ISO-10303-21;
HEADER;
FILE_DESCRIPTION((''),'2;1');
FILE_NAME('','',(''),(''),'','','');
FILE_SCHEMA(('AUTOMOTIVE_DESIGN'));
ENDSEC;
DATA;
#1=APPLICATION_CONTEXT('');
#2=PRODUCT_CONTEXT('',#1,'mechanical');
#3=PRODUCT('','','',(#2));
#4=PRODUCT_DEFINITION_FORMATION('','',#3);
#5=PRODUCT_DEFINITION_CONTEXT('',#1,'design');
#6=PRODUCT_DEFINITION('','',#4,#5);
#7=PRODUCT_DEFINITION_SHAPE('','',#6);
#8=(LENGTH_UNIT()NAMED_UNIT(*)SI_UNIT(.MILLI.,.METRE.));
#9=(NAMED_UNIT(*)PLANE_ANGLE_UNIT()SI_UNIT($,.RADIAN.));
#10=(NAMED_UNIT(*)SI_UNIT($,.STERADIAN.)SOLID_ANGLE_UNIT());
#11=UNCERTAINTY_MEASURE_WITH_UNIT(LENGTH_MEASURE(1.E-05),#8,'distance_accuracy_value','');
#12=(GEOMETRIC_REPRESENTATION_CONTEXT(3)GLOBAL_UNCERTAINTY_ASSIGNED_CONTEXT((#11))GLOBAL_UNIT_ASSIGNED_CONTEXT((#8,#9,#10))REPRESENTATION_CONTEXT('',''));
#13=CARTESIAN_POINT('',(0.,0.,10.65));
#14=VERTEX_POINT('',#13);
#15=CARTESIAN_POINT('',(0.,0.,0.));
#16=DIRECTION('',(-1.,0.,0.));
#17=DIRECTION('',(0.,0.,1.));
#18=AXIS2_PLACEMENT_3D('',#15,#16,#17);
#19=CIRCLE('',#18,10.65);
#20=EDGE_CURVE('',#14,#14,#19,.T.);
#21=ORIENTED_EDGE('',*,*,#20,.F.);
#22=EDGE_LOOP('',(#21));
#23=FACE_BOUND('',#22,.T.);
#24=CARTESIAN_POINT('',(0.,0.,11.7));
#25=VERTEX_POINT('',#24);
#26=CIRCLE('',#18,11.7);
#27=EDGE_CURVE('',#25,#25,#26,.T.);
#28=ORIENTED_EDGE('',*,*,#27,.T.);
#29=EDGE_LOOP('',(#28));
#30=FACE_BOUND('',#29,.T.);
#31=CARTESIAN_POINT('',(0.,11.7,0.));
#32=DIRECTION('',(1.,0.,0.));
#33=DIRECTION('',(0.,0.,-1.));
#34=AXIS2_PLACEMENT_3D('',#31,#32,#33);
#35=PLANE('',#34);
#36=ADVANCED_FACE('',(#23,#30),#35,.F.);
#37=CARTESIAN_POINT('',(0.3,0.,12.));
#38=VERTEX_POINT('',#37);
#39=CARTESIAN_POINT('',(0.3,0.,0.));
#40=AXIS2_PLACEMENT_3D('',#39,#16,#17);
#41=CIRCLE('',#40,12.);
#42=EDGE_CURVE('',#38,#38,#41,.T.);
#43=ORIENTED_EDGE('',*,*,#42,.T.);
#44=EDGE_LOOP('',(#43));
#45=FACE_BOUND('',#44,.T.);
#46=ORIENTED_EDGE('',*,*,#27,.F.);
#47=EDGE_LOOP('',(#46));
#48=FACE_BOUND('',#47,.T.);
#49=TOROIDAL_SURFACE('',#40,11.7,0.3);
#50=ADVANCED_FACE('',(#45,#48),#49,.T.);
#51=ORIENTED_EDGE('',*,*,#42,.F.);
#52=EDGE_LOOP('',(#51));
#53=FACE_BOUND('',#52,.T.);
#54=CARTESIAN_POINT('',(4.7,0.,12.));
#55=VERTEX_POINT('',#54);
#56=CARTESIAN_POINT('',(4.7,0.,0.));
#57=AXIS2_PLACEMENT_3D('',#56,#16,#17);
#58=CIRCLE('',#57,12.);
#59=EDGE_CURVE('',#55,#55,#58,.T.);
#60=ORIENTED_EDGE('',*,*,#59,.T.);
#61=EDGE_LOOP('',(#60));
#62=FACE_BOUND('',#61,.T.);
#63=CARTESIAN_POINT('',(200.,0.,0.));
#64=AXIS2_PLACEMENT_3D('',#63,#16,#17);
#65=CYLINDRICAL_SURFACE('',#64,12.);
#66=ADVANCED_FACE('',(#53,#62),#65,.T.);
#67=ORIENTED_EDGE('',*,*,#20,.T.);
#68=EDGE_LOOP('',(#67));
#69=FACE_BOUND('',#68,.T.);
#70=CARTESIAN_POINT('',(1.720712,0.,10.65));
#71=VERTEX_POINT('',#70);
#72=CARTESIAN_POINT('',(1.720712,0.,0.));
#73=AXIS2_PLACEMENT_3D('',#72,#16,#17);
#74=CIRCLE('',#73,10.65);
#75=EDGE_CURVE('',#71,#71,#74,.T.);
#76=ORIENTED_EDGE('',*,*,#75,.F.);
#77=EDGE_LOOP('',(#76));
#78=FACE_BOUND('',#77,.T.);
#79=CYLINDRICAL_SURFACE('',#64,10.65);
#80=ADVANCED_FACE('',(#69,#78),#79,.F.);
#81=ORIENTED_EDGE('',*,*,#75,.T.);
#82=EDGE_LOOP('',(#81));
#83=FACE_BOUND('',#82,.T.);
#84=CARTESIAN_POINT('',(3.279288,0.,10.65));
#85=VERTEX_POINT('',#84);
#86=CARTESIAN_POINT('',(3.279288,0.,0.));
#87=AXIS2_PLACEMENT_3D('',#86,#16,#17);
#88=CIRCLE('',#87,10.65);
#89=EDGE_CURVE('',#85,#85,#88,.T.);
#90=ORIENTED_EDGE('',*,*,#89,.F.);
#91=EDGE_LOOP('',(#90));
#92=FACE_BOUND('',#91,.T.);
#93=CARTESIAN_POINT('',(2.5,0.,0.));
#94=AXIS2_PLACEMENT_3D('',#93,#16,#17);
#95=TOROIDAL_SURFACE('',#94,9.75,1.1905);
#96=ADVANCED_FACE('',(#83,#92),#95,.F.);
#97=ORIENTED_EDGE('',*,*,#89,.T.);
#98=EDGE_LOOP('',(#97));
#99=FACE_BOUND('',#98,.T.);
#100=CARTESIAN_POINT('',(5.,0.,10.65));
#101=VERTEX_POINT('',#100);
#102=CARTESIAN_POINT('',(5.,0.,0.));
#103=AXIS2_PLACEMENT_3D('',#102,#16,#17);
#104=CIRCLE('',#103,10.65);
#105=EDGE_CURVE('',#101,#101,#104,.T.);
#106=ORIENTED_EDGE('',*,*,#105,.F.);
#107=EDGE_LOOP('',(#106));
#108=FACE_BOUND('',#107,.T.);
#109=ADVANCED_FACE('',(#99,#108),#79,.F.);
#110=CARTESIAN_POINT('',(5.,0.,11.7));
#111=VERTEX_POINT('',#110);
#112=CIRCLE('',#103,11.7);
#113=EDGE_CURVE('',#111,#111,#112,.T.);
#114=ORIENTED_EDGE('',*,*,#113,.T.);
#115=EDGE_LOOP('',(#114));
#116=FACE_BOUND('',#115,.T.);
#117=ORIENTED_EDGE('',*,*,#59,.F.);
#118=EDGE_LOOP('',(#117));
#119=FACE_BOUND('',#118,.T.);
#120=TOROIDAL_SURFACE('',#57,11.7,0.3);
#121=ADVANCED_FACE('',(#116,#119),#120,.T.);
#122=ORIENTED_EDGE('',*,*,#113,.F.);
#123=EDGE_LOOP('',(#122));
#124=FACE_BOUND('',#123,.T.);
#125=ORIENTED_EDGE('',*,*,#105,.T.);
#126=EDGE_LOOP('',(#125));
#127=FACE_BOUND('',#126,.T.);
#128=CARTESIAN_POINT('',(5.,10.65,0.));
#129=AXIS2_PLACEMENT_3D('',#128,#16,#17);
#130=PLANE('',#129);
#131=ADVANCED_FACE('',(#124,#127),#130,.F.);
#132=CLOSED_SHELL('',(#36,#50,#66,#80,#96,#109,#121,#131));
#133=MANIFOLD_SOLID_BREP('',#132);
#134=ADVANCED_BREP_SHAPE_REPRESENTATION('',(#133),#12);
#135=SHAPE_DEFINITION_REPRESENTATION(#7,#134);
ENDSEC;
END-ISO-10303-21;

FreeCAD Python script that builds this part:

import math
import FreeCAD as App
import Part
import Sketcher
from FreeCAD import Vector

doc = App.newDocument("Part")
body = doc.addObject("PartDesign::Body", "Body")

sketch1 = doc.addObject("Sketcher::SketchObject", "Sketch")
body.addObject(sketch1)
sketch1.AttachmentSupport = (doc.XY_Plane, [""])
sketch1.MapMode = "FlatFace"
sketch1.addGeometry([
    Part.LineSegment(Vector(0, 11.7, 0), Vector(0, 10.65, 0)),
    Part.LineSegment(Vector(0, 10.65, 0), Vector(1.72, 10.65, 0)),
    Part.ArcOfCircle(Part.Circle(Vector(2.5, 9.75, 0), Vector(0, 0, 1), 1.19), math.radians(49), math.radians(131)),
    Part.LineSegment(Vector(3.28, 10.65, 0), Vector(5, 10.65, 0)),
    Part.LineSegment(Vector(5, 10.65, 0), Vector(5, 11.7, 0)),
    Part.ArcOfCircle(Part.Circle(Vector(4.7, 11.7, 0), Vector(0, 0, 1), 0.3), math.radians(0), math.radians(90)),
    Part.LineSegment(Vector(4.7, 12, 0), Vector(0.3, 12, 0)),
    Part.ArcOfCircle(Part.Circle(Vector(0.3, 11.7, 0), Vector(0, 0, 1), 0.3), math.radians(90), math.radians(180)),
], False)
sketch1.addConstraint([
    Sketcher.Constraint("Coincident", 0, 2, 1, 1),
    Sketcher.Constraint("Coincident", 1, 2, 2, 2),
    Sketcher.Constraint("Coincident", 2, 1, 3, 1),
    Sketcher.Constraint("Coincident", 3, 2, 4, 1),
    Sketcher.Constraint("Tangent", 4, 2, 5, 1),
    Sketcher.Constraint("Tangent", 5, 2, 6, 1),
    Sketcher.Constraint("Tangent", 6, 2, 7, 1),
    Sketcher.Constraint("Tangent", 7, 2, 0, 1),
    Sketcher.Constraint("Vertical", 0),
    Sketcher.Constraint("Horizontal", 1),
    Sketcher.Constraint("Horizontal", 3),
    Sketcher.Constraint("Vertical", 4),
    Sketcher.Constraint("Horizontal", 6),
    Sketcher.Constraint("Equal", 5, 7),
    Sketcher.Constraint("PointOnObject", 0, 2, -2),
    Sketcher.Constraint("Horizontal", 1, 2, 2, 1),
    Sketcher.Constraint("Equal", 1, 3),
    Sketcher.Constraint("Radius", 5, 0.3),
    Sketcher.Constraint("DistanceX", 6, 2, 6, 1, 4.4),
    Sketcher.Constraint("DistanceY", -1, 1, 5, 2, 12.0),
    Sketcher.Constraint("DistanceY", 0, 2, 0, 1, 1.05),
    Sketcher.Constraint("Radius", 2, 1.1905),
    Sketcher.Constraint("DistanceY", 2, 3, 0, 2, 0.9),
])
revolution = doc.addObject("PartDesign::Revolution", "Revolution")
body.addObject(revolution)
revolution.Profile = sketch1
revolution.ReferenceAxis = (sketch1, ["H_Axis"])
revolution.Angle = 360

doc.recompute()
